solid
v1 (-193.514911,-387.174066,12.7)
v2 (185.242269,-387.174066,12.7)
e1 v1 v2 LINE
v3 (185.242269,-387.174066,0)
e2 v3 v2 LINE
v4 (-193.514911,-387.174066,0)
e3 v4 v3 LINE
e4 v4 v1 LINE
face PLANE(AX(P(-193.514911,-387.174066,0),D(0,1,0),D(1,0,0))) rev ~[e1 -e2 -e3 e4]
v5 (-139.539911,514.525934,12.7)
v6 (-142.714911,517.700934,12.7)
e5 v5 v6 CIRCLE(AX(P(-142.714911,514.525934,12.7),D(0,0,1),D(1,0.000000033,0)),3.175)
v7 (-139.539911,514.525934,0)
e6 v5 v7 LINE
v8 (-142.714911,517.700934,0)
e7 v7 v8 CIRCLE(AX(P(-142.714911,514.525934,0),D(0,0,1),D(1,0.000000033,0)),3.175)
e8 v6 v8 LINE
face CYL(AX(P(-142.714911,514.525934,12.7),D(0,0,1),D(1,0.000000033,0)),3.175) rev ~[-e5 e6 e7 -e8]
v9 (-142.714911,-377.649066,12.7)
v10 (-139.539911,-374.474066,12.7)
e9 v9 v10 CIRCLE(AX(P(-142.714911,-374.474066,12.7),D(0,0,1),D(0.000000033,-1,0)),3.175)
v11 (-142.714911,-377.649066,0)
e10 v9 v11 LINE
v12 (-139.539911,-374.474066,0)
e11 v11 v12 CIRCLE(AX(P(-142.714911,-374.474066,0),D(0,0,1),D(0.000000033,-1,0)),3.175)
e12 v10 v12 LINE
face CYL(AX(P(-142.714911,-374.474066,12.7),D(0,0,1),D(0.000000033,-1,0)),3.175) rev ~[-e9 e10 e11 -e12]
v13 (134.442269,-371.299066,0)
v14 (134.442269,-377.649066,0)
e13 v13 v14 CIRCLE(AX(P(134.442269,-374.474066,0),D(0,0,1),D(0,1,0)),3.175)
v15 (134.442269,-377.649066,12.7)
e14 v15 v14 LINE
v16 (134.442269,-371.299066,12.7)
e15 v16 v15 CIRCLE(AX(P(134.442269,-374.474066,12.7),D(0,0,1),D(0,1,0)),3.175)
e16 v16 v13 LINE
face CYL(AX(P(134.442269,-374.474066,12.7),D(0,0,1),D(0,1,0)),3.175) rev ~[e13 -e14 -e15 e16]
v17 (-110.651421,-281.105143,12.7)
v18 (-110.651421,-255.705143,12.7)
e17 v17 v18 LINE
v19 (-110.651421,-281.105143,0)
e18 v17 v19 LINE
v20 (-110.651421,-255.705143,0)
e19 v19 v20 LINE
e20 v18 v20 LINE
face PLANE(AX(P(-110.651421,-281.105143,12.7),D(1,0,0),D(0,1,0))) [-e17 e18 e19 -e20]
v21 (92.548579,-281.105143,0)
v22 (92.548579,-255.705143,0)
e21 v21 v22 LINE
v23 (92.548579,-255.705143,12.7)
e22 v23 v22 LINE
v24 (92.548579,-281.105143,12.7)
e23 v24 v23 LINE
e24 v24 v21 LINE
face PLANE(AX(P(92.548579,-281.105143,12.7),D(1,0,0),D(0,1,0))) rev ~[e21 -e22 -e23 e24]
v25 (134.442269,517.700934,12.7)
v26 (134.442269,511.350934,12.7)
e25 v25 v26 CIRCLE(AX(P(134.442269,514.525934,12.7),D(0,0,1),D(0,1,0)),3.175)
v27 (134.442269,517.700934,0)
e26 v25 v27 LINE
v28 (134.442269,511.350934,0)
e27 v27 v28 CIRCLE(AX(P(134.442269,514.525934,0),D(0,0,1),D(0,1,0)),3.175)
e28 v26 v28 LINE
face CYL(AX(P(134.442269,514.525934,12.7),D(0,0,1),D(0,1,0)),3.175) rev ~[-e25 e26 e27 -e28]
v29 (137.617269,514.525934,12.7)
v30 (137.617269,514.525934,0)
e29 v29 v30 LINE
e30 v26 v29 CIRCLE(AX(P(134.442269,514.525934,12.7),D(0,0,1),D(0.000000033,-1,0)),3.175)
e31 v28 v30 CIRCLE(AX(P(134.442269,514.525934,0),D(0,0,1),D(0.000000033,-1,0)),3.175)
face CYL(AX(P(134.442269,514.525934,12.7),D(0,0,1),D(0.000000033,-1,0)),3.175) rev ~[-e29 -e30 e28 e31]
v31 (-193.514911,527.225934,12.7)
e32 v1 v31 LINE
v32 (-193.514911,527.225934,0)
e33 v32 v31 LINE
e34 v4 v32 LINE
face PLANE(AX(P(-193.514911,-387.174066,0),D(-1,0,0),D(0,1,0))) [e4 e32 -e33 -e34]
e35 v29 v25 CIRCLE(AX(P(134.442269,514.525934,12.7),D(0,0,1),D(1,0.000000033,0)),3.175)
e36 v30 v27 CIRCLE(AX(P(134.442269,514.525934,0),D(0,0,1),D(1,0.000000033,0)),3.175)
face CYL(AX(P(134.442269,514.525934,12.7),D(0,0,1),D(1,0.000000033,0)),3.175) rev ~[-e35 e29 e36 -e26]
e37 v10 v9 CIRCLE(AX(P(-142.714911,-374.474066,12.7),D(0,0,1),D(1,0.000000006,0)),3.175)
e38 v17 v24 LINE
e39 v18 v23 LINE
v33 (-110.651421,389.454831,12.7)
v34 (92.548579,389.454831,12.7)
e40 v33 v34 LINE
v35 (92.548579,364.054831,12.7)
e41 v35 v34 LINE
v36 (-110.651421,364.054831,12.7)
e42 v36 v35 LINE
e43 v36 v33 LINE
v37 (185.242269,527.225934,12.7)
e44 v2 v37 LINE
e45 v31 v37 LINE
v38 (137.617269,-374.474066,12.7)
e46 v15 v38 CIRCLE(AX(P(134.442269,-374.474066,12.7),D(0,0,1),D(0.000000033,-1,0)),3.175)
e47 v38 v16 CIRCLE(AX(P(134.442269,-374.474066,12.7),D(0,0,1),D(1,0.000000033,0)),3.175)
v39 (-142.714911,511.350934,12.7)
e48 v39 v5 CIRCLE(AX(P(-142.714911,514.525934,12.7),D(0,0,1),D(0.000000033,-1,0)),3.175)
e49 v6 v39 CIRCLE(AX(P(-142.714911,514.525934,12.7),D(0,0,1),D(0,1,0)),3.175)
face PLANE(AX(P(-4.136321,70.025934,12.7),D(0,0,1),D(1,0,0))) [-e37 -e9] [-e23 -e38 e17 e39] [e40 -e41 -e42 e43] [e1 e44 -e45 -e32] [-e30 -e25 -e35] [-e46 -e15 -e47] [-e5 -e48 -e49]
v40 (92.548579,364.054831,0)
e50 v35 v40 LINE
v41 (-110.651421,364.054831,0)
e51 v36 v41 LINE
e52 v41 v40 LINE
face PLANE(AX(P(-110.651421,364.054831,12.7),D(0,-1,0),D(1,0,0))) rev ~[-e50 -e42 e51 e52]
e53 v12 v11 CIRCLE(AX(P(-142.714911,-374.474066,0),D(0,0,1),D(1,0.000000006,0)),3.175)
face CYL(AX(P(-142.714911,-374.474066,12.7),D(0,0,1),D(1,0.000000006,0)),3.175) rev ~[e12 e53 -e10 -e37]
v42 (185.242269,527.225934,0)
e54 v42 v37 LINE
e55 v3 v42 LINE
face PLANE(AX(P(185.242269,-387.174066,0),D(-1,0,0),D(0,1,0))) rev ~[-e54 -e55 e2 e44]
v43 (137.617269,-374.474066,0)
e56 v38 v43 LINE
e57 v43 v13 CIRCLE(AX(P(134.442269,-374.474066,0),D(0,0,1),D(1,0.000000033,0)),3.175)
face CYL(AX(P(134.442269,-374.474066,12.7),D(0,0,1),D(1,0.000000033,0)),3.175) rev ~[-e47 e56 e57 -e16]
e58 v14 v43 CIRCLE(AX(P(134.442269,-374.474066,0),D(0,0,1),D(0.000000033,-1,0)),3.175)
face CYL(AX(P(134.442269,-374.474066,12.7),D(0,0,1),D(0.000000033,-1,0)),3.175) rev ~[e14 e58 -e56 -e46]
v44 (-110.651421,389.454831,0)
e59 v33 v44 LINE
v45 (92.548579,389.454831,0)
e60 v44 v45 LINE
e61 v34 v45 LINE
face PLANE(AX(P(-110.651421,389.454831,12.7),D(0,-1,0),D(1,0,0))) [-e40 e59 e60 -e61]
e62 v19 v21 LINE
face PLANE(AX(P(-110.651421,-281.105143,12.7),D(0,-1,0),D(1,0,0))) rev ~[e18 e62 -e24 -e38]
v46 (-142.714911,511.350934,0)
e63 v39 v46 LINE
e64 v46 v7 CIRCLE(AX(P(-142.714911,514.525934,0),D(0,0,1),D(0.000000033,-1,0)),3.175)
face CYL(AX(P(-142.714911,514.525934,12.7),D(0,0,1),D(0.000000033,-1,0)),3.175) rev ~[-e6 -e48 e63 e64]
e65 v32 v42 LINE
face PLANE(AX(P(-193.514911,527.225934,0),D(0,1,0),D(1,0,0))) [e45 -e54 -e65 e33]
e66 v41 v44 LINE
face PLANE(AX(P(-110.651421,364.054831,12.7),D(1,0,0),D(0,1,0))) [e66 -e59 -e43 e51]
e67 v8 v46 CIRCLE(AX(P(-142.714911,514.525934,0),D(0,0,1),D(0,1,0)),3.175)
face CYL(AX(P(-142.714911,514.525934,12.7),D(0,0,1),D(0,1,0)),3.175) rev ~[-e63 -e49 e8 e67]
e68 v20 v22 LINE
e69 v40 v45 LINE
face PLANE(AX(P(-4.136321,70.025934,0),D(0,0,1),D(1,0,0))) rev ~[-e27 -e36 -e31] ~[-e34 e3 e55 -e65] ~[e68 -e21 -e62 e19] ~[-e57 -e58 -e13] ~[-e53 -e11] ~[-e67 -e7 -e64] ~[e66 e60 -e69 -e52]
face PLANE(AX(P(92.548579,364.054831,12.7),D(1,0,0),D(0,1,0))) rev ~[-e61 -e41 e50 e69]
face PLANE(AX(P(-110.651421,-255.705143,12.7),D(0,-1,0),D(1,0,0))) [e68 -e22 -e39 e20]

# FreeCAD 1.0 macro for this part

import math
import FreeCAD as App
import Part
import Sketcher
from FreeCAD import Vector
Q = App.Units.Quantity

doc = App.newDocument("Part")
body = doc.addObject("PartDesign::Body", "Body")

# Sketch on XY plane
sketch1 = body.newObject("Sketcher::SketchObject", "Sketch")
sketch1.AttachmentSupport = (doc.getObject("XY_Plane"), [""])
sketch1.MapMode = "FlatFace"
sketch1.addGeometry([
    Part.LineSegment(Vector(-193.514911, 527.225934, 0), Vector(-193.514911, -387.174066, 0)),
    Part.LineSegment(Vector(-193.514911, -387.174066, 0), Vector(185.242269, -387.174066, 0)),
    Part.LineSegment(Vector(185.242269, -387.174066, 0), Vector(185.242269, 527.225934, 0)),
    Part.LineSegment(Vector(185.242269, 527.225934, 0), Vector(-193.514911, 527.225934, 0)),
], False)
sketch1.addConstraint([
    Sketcher.Constraint("Coincident", 0, 2, 1, 1),
    Sketcher.Constraint("Coincident", 1, 2, 2, 1),
    Sketcher.Constraint("Coincident", 2, 2, 3, 1),
    Sketcher.Constraint("Coincident", 3, 2, 0, 1),
    Sketcher.Constraint("Vertical", 0),
    Sketcher.Constraint("Horizontal", 1),
    Sketcher.Constraint("Vertical", 2),
    Sketcher.Constraint("Horizontal", 3),
    Sketcher.Constraint("DistanceY", 0, 2, 0, 1, Q("36 in")),
    Sketcher.Constraint("DistanceX", 1, 1, 1, 2, Q("14.9117 in")),
    Sketcher.Constraint("DistanceX", 0, 2, -1, 1, Q("193.514911 mm")),
    Sketcher.Constraint("DistanceY", 0, 2, -1, 1, Q("387.174066 mm")),
])
pad1 = body.newObject("PartDesign::Pad", "Pad")
pad1.Profile = sketch1
pad1.Length = Q("0.5 in")

# Sketch on XY plane
sketch2 = body.newObject("Sketcher::SketchObject", "Sketch001")
sketch2.AttachmentSupport = (doc.getObject("XY_Plane"), [""])
sketch2.MapMode = "FlatFace"
sketch2.AttachmentOffset = App.Placement(Vector(0, 0, 0.5 * 25.4), App.Rotation())
sketch2.addGeometry([
    Part.ArcOfCircle(Part.Circle(Vector(-142.714911, 514.525934, 0), Vector(0, 0, 1), 3.175), math.radians(-89.999998), math.radians(-0.000002)),  # 0
    Part.ArcOfCircle(Part.Circle(Vector(-142.714911, 514.525934, 0), Vector(0, 0, 1), 3.175), math.radians(0.000002), math.radians(89.999998)),  # 1
    Part.ArcOfCircle(Part.Circle(Vector(-142.714911, 514.525934, 0), Vector(0, 0, 1), 3.175), math.radians(90), math.radians(270)),  # 2
    Part.ArcOfCircle(Part.Circle(Vector(134.442269, 514.525934, 0), Vector(0, 0, 1), 3.175), math.radians(-89.999998), math.radians(-0.000002)),  # 3
    Part.ArcOfCircle(Part.Circle(Vector(134.442269, 514.525934, 0), Vector(0, 0, 1), 3.175), math.radians(0.000002), math.radians(89.999998)),  # 4
    Part.ArcOfCircle(Part.Circle(Vector(134.442269, 514.525934, 0), Vector(0, 0, 1), 3.175), math.radians(90), math.radians(270)),  # 5
    Part.ArcOfCircle(Part.Circle(Vector(-142.714911, -374.474066, 0), Vector(0, 0, 1), 3.175), math.radians(-89.999998), math.radians(-0.000002)),  # 6
    Part.ArcOfCircle(Part.Circle(Vector(-142.714911, -374.474066, 0), Vector(0, 0, 1), 3.175), math.radians(0), math.radians(270)),  # 7
    Part.ArcOfCircle(Part.Circle(Vector(134.442269, -374.474066, 0), Vector(0, 0, 1), 3.175), math.radians(-89.999998), math.radians(-0.000002)),  # 8
    Part.ArcOfCircle(Part.Circle(Vector(134.442269, -374.474066, 0), Vector(0, 0, 1), 3.175), math.radians(0.000002), math.radians(89.999998)),  # 9
    Part.ArcOfCircle(Part.Circle(Vector(134.442269, -374.474066, 0), Vector(0, 0, 1), 3.175), math.radians(90), math.radians(270)),  # 10
], False)
sketch2.addConstraint([
    Sketcher.Constraint("Tangent", 0, 2, 1, 1),
    Sketcher.Constraint("Tangent", 1, 2, 2, 1),
    Sketcher.Constraint("Tangent", 2, 2, 0, 1),
    Sketcher.Constraint("Tangent", 3, 2, 4, 1),
    Sketcher.Constraint("Tangent", 4, 2, 5, 1),
    Sketcher.Constraint("Tangent", 5, 2, 3, 1),
    Sketcher.Constraint("Tangent", 6, 1, 7, 2),
    Sketcher.Constraint("Coincident", 7, 1, 6, 2),
    Sketcher.Constraint("Tangent", 8, 2, 9, 1),
    Sketcher.Constraint("Tangent", 9, 2, 10, 1),
    Sketcher.Constraint("Tangent", 10, 2, 8, 1),
    Sketcher.Constraint("Equal", 2, 3),
    Sketcher.Constraint("Equal", 5, 6),
    Sketcher.Constraint("Equal", 7, 8),
    Sketcher.Constraint("Horizontal", 2, 3, 3, 3),
    Sketcher.Constraint("Horizontal", 7, 3, 8, 3),
    Sketcher.Constraint("Horizontal", 5, 3, 0, 2),
    Sketcher.Constraint("Horizontal", 0, 2, 3, 2),
    Sketcher.Constraint("Horizontal", 10, 3, 7, 1),
    Sketcher.Constraint("Horizontal", 7, 1, 8, 2),
    Sketcher.Constraint("Vertical", 2, 3, 6, 3),
    Sketcher.Constraint("Vertical", 5, 3, 8, 3),
    Sketcher.Constraint("Vertical", 7, 3, 1, 2),
    Sketcher.Constraint("Vertical", 1, 2, 2, 2),
    Sketcher.Constraint("Vertical", 10, 3, 4, 2),
    Sketcher.Constraint("Vertical", 4, 2, 5, 2),
    Sketcher.Constraint("Vertical", 2, 2, 6, 1),
    Sketcher.Constraint("Vertical", 5, 2, 9, 2),
    Sketcher.Constraint("Vertical", 9, 2, 10, 2),
    Sketcher.Constraint("Radius", 0, Q("0.125 in")),
    Sketcher.Constraint("DistanceY", 6, 3, 1, 3, Q("35 in")),
    Sketcher.Constraint("DistanceX", 2, 3, 3, 3, Q("10.9117 in")),
    Sketcher.Constraint("DistanceX", 0, 3, -1, 1, Q("142.714911 mm")),
    Sketcher.Constraint("DistanceY", -1, 1, 0, 3, Q("514.525934 mm")),
])
pocket1 = body.newObject("PartDesign::Pocket", "Pocket")
pocket1.Profile = sketch2
pocket1.Type = "ThroughAll"

# Sketch on XY plane
sketch3 = body.newObject("Sketcher::SketchObject", "Sketch002")
sketch3.AttachmentSupport = (doc.getObject("XY_Plane"), [""])
sketch3.MapMode = "FlatFace"
sketch3.AttachmentOffset = App.Placement(Vector(0, 0, 0.5 * 25.4), App.Rotation())
sketch3.addGeometry([
    Part.LineSegment(Vector(-110.651421, 389.454831, 0), Vector(-110.651421, 364.054831, 0)),  # 0
    Part.LineSegment(Vector(-110.651421, 364.054831, 0), Vector(92.548579, 364.054831, 0)),  # 1
    Part.LineSegment(Vector(92.548579, 364.054831, 0), Vector(92.548579, 389.454831, 0)),  # 2
    Part.LineSegment(Vector(92.548579, 389.454831, 0), Vector(-110.651421, 389.454831, 0)),  # 3
    Part.LineSegment(Vector(-110.651421, -255.705143, 0), Vector(-110.651421, -281.105143, 0)),  # 4
    Part.LineSegment(Vector(-110.651421, -281.105143, 0), Vector(92.548579, -281.105143, 0)),  # 5
    Part.LineSegment(Vector(92.548579, -281.105143, 0), Vector(92.548579, -255.705143, 0)),  # 6
    Part.LineSegment(Vector(92.548579, -255.705143, 0), Vector(-110.651421, -255.705143, 0)),  # 7
], False)
sketch3.addConstraint([
    Sketcher.Constraint("Coincident", 0, 2, 1, 1),
    Sketcher.Constraint("Coincident", 1, 2, 2, 1),
    Sketcher.Constraint("Coincident", 2, 2, 3, 1),
    Sketcher.Constraint("Coincident", 3, 2, 0, 1),
    Sketcher.Constraint("Coincident", 4, 2, 5, 1),
    Sketcher.Constraint("Coincident", 5, 2, 6, 1),
    Sketcher.Constraint("Coincident", 6, 2, 7, 1),
    Sketcher.Constraint("Coincident", 7, 2, 4, 1),
    Sketcher.Constraint("Vertical", 0),
    Sketcher.Constraint("Horizontal", 1),
    Sketcher.Constraint("Vertical", 2),
    Sketcher.Constraint("Horizontal", 3),
    Sketcher.Constraint("Vertical", 4),
    Sketcher.Constraint("Horizontal", 5),
    Sketcher.Constraint("Vertical", 6),
    Sketcher.Constraint("Horizontal", 7),
    Sketcher.Constraint("Vertical", 3, 2, 4, 2),
    Sketcher.Constraint("Vertical", 2, 2, 5, 2),
    Sketcher.Constraint("Equal", 2, 4),
    Sketcher.Constraint("DistanceX", 1, 1, 1, 2, Q("8 in")),
    Sketcher.Constraint("DistanceY", 0, 2, 0, 1, Q("1 in")),
    Sketcher.Constraint("DistanceX", 0, 2, -1, 1, Q("110.651421 mm")),
    Sketcher.Constraint("DistanceY", -1, 1, 0, 2, Q("364.054831 mm")),
    Sketcher.Constraint("DistanceY", 4, 2, -1, 1, Q("281.105143 mm")),
])
pocket2 = body.newObject("PartDesign::Pocket", "Pocket001")
pocket2.Profile = sketch3
pocket2.Length = Q("1 in")

doc.recompute()
